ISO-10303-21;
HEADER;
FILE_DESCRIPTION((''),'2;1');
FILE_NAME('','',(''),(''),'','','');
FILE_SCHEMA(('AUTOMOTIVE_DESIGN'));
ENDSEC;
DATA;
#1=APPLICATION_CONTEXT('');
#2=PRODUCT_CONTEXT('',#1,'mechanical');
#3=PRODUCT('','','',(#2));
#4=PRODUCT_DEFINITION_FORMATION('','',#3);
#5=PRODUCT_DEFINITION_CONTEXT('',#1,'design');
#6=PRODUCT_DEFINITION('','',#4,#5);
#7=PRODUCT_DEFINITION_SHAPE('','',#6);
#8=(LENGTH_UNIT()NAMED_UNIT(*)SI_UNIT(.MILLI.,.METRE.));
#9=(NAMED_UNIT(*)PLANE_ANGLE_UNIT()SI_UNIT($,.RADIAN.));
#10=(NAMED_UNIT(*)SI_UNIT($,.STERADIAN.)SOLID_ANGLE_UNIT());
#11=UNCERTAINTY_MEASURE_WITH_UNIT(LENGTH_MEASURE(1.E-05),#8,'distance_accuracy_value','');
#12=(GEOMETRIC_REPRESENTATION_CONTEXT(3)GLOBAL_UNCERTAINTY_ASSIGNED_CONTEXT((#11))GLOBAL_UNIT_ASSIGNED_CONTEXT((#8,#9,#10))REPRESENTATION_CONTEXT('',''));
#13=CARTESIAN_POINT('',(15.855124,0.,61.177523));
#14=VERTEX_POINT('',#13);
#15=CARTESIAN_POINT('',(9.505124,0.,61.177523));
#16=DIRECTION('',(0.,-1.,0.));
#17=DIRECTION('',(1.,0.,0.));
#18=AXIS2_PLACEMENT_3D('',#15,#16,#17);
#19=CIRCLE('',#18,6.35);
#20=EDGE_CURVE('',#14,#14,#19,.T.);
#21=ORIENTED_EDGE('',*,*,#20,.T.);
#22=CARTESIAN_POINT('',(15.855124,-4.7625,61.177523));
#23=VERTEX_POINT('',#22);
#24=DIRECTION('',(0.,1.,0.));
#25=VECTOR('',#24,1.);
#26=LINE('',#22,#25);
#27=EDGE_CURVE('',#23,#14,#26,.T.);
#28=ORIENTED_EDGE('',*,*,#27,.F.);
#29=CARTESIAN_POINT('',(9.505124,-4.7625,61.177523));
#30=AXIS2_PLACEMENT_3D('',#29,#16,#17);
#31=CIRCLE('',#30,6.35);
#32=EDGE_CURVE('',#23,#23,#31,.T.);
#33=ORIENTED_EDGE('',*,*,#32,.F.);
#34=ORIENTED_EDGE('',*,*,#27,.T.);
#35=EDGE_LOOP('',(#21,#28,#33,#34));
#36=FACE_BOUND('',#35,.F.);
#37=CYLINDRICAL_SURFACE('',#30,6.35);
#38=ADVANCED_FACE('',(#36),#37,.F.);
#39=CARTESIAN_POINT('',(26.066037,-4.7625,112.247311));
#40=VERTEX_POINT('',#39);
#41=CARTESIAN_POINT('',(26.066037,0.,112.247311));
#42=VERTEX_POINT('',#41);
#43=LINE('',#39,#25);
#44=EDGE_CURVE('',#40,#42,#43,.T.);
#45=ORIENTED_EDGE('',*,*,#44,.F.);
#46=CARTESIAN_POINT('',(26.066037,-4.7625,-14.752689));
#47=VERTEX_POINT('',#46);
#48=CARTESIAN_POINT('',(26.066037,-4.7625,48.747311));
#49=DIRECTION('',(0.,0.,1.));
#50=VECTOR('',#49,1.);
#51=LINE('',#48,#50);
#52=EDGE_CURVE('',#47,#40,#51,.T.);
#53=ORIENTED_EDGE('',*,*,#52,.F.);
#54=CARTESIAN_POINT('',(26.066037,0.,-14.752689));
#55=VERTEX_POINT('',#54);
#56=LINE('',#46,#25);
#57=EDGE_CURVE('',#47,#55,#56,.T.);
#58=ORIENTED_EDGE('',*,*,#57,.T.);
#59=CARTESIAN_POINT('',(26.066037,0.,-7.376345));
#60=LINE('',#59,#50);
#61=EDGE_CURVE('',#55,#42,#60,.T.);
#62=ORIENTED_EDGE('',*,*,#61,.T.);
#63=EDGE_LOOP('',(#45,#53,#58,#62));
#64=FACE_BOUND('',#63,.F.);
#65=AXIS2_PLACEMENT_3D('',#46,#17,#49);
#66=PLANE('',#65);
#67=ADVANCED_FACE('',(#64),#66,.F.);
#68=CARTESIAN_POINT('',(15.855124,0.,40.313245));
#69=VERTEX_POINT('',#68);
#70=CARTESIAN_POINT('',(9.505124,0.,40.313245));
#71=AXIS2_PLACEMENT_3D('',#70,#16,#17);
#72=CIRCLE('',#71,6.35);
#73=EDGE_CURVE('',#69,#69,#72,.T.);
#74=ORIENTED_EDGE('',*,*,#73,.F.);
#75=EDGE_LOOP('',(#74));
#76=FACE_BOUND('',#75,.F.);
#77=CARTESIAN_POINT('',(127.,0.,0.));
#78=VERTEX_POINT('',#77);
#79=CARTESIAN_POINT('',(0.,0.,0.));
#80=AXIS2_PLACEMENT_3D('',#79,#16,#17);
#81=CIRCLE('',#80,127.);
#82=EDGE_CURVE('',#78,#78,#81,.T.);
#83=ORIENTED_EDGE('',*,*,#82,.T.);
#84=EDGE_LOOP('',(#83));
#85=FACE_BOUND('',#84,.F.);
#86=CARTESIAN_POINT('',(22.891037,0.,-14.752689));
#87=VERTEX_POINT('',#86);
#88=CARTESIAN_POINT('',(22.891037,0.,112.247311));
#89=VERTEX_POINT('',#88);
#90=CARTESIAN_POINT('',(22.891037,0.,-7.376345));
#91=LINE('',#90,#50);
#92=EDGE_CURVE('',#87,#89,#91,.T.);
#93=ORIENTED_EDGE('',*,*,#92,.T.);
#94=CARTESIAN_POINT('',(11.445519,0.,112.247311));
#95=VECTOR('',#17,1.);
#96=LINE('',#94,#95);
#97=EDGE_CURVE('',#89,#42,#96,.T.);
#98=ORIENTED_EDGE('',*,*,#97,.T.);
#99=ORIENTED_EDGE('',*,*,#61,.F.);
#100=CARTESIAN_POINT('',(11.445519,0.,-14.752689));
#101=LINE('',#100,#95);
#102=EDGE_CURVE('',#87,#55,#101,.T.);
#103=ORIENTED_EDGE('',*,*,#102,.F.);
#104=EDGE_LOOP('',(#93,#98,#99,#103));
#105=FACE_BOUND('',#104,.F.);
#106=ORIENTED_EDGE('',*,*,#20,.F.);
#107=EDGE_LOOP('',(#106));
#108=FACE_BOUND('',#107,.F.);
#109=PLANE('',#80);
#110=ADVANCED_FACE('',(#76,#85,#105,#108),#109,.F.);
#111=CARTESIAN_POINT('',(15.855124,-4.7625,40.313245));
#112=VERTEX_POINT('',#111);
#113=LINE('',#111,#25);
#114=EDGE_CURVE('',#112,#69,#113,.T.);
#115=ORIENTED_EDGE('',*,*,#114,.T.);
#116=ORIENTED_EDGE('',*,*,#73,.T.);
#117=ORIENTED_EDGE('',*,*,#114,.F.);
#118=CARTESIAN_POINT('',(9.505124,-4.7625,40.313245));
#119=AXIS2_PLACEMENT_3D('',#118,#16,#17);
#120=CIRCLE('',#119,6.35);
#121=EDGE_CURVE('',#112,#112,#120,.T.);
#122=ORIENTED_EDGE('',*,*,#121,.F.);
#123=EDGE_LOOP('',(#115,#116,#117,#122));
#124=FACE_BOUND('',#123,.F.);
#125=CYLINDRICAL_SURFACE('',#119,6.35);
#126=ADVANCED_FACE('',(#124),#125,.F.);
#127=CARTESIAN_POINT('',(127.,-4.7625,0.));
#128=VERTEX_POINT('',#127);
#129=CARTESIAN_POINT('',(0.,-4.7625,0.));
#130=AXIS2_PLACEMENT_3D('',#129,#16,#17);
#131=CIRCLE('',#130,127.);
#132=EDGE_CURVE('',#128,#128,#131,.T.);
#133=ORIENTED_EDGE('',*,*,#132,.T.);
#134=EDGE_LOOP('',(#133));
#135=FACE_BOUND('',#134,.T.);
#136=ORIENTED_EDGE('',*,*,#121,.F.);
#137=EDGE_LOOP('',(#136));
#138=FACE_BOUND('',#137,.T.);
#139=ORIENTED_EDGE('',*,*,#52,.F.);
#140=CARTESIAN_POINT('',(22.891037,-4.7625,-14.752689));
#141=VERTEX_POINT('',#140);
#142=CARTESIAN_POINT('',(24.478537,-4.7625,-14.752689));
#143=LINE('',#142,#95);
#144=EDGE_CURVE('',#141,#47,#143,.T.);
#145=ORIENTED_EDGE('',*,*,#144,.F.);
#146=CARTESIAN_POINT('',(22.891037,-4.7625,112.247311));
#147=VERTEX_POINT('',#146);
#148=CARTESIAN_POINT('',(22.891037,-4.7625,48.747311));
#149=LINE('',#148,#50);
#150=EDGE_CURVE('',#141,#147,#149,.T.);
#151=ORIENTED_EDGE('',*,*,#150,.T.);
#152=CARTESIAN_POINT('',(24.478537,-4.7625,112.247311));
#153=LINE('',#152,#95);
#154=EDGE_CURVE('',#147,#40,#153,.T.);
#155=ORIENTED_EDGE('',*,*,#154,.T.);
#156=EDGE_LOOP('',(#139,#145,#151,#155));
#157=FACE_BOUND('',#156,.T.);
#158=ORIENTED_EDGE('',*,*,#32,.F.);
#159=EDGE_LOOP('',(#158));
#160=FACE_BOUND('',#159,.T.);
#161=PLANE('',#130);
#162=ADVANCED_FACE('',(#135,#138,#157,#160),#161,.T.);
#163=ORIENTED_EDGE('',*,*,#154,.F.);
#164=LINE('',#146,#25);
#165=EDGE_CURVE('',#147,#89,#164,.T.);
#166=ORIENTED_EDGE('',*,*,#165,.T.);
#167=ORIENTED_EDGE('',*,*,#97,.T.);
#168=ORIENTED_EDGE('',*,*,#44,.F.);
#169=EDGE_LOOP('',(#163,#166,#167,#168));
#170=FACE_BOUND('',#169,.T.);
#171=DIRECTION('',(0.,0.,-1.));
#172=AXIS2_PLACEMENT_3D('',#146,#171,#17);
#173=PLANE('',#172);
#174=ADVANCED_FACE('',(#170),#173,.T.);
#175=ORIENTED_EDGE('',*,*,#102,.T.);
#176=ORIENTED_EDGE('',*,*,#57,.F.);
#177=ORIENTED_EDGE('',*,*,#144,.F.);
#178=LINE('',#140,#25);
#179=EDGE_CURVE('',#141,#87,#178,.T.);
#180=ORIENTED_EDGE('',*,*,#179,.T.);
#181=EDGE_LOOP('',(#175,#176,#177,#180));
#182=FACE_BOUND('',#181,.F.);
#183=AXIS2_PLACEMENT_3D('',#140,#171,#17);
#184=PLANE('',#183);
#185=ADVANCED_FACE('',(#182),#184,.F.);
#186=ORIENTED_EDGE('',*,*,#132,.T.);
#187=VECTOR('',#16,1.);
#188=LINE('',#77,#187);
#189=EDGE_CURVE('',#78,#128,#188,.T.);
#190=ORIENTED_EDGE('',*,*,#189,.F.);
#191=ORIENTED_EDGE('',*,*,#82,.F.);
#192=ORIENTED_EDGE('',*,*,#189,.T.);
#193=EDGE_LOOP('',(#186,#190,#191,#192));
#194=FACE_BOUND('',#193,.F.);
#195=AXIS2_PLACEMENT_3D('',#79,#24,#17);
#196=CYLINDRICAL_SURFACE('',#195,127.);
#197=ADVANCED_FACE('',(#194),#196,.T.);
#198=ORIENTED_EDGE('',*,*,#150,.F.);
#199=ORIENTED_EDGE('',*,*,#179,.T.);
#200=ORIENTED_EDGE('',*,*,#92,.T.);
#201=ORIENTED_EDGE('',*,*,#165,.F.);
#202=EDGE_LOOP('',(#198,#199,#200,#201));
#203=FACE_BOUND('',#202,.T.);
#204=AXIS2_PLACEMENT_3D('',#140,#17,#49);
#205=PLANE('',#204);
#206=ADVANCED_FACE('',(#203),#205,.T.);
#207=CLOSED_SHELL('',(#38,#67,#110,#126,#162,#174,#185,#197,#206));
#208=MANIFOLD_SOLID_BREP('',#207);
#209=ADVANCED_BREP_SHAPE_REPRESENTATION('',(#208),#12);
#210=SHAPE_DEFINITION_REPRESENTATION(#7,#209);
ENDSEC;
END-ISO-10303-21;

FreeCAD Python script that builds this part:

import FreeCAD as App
import Part
import Sketcher
from FreeCAD import Vector
Q = App.Units.Quantity


def edges_at(feature, points):
    """Names of the edges that pass closest to the given points."""
    edges = feature.Shape.Edges
    near = lambda p: min(range(len(edges)), key=lambda i: edges[i].distToShape(Part.Vertex(*p))[0])
    return sorted({f"Edge{near(p) + 1}" for p in points})

doc = App.newDocument("Part")
params = doc.addObject("Spreadsheet::Sheet", "Params")
for row, (alias, value) in enumerate([
    ("sketch1_diameter", "10 in"),
    ("pad1_length", "0.1875 in"),
    ("sketch2_diameter", "0.5 in"),
    ("sketch3_height", "5 in"),
    ("sketch3_width", "0.125 in"),
    ("sketch4_height", "3 in"),
    ("sketch4_width", "0.5 in"),
    ("pad2_length", "1 in"),
    ("chamfer_size", "0.2 in"),
], start=1):
    params.set(f"A{row}", alias)
    params.set(f"B{row}", "=" + value)
    params.setAlias(f"B{row}", alias)

body = doc.addObject("PartDesign::Body", "Body")

# Sketch on XZ plane
sketch1 = body.newObject("Sketcher::SketchObject", "Sketch")
sketch1.AttachmentSupport = (doc.getObject("XZ_Plane"), [""])
sketch1.MapMode = "FlatFace"
sketch1.addGeometry(Part.Circle(Vector(0, 0, 0), Vector(0, 0, 1), 127), False)
sketch1.addConstraint([
    Sketcher.Constraint("Coincident", 0, 3, -1, 1),
    Sketcher.Constraint("Diameter", 0, Q("10 in")),
])
sketch1.setExpression("Constraints[1]", "Params.sketch1_diameter")
pad1 = body.newObject("PartDesign::Pad", "Pad")
pad1.Profile = sketch1
pad1.setExpression("Length", "Params.pad1_length")

# Sketch on XZ plane
sketch2 = body.newObject("Sketcher::SketchObject", "Sketch001")
sketch2.AttachmentSupport = (doc.getObject("XZ_Plane"), [""])
sketch2.MapMode = "FlatFace"
sketch2.AttachmentOffset = App.Placement(Vector(0, 0, 0.1875 * 25.4), App.Rotation())
sketch2.addGeometry([
    Part.Circle(Vector(10, 61, 0), Vector(0, 0, 1), 6),
    Part.Circle(Vector(10, 40, 0), Vector(0, 0, 1), 6),
], False)
sketch2.addConstraint([
    Sketcher.Constraint("Equal", 0, 1),
    Sketcher.Constraint("Vertical", 0, 3, 1, 3),
    Sketcher.Constraint("Diameter", 0, Q("0.5 in")),
    Sketcher.Constraint("DistanceX", -1, 1, 0, 3, 9.505124),
    Sketcher.Constraint("DistanceY", -1, 1, 0, 3, 61.177523),
    Sketcher.Constraint("DistanceY", -1, 1, 1, 3, 40.313245),
])
sketch2.setExpression("Constraints[2]", "Params.sketch2_diameter")
pocket1 = body.newObject("PartDesign::Pocket", "Pocket")
pocket1.Profile = sketch2
pocket1.Type = "ThroughAll"

# Sketch on XZ plane
sketch3 = body.newObject("Sketcher::SketchObject", "Sketch002")
sketch3.AttachmentSupport = (doc.getObject("XZ_Plane"), [""])
sketch3.MapMode = "FlatFace"
sketch3.AttachmentOffset = App.Placement(Vector(0, 0, 0.1875 * 25.4), App.Rotation())
sketch3.addGeometry([
    Part.LineSegment(Vector(22.9, 112.2, 0), Vector(22.9, -14.8, 0)),
    Part.LineSegment(Vector(22.9, -14.8, 0), Vector(26.1, -14.8, 0)),
    Part.LineSegment(Vector(26.1, -14.8, 0), Vector(26.1, 112.2, 0)),
    Part.LineSegment(Vector(26.1, 112.2, 0), Vector(22.9, 112.2, 0)),
], False)
sketch3.addConstraint([
    Sketcher.Constraint("Coincident", 0, 2, 1, 1),
    Sketcher.Constraint("Coincident", 1, 2, 2, 1),
    Sketcher.Constraint("Coincident", 2, 2, 3, 1),
    Sketcher.Constraint("Coincident", 3, 2, 0, 1),
    Sketcher.Constraint("Vertical", 0),
    Sketcher.Constraint("Horizontal", 1),
    Sketcher.Constraint("Vertical", 2),
    Sketcher.Constraint("Horizontal", 3),
    Sketcher.Constraint("DistanceY", 0, 2, 0, 1, Q("5 in")),
    Sketcher.Constraint("DistanceX", 1, 1, 1, 2, Q("0.125 in")),
    Sketcher.Constraint("DistanceY", 0, 2, -1, 1, 14.752689),
    Sketcher.Constraint("DistanceX", -1, 1, 0, 2, 22.891037),
])
sketch3.setExpression("Constraints[8]", "Params.sketch3_height")
sketch3.setExpression("Constraints[9]", "Params.sketch3_width")
pocket2 = body.newObject("PartDesign::Pocket", "Pocket001")
pocket2.Profile = sketch3
pocket2.Type = "ThroughAll"
body2 = doc.addObject("PartDesign::Body", "Body001")

# Sketch on XZ plane
sketch4 = body2.newObject("Sketcher::SketchObject", "Sketch003")
sketch4.AttachmentSupport = (doc.getObject("XZ_Plane001"), [""])
sketch4.MapMode = "FlatFace"
sketch4.AttachmentOffset = App.Placement(Vector(0, 0, 0.1875 * 25.4), App.Rotation())
sketch4.addGeometry([
    Part.LineSegment(Vector(-228, 4, 0), Vector(-228, -72, 0)),
    Part.LineSegment(Vector(-228, -72, 0), Vector(-215, -72, 0)),
    Part.LineSegment(Vector(-215, -72, 0), Vector(-215, 4, 0)),
    Part.LineSegment(Vector(-215, 4, 0), Vector(-228, 4, 0)),
], False)
sketch4.addConstraint([
    Sketcher.Constraint("Coincident", 0, 2, 1, 1),
    Sketcher.Constraint("Coincident", 1, 2, 2, 1),
    Sketcher.Constraint("Coincident", 2, 2, 3, 1),
    Sketcher.Constraint("Coincident", 3, 2, 0, 1),
    Sketcher.Constraint("Vertical", 0),
    Sketcher.Constraint("Horizontal", 1),
    Sketcher.Constraint("Vertical", 2),
    Sketcher.Constraint("Horizontal", 3),
    Sketcher.Constraint("DistanceY", 0, 2, 0, 1, Q("3 in")),
    Sketcher.Constraint("DistanceX", 1, 1, 1, 2, Q("0.5 in")),
    Sketcher.Constraint("DistanceY", 0, 2, -1, 1, 72.083209),
    Sketcher.Constraint("DistanceX", 0, 2, -1, 1, 228.074585),
])
sketch4.setExpression("Constraints[8]", "Params.sketch4_height")
sketch4.setExpression("Constraints[9]", "Params.sketch4_width")
pad2 = body2.newObject("PartDesign::Pad", "Pad001")
pad2.Profile = sketch4
pad2.setExpression("Length", "Params.pad2_length")
doc.recompute()

chamfer = body2.newObject("PartDesign::Chamfer", "Chamfer")
chamfer.Base = (pad2, edges_at(pad2, [
    (-228.075, -30.163, -33.983),
    (-215.375, -30.163, -33.983),
    (-221.725, -30.163, 4.117),
    (-221.725, -30.163, -72.083),
]))
chamfer.setExpression("Size", "Params.chamfer_size")
body2.Visibility = False

doc.recompute()
